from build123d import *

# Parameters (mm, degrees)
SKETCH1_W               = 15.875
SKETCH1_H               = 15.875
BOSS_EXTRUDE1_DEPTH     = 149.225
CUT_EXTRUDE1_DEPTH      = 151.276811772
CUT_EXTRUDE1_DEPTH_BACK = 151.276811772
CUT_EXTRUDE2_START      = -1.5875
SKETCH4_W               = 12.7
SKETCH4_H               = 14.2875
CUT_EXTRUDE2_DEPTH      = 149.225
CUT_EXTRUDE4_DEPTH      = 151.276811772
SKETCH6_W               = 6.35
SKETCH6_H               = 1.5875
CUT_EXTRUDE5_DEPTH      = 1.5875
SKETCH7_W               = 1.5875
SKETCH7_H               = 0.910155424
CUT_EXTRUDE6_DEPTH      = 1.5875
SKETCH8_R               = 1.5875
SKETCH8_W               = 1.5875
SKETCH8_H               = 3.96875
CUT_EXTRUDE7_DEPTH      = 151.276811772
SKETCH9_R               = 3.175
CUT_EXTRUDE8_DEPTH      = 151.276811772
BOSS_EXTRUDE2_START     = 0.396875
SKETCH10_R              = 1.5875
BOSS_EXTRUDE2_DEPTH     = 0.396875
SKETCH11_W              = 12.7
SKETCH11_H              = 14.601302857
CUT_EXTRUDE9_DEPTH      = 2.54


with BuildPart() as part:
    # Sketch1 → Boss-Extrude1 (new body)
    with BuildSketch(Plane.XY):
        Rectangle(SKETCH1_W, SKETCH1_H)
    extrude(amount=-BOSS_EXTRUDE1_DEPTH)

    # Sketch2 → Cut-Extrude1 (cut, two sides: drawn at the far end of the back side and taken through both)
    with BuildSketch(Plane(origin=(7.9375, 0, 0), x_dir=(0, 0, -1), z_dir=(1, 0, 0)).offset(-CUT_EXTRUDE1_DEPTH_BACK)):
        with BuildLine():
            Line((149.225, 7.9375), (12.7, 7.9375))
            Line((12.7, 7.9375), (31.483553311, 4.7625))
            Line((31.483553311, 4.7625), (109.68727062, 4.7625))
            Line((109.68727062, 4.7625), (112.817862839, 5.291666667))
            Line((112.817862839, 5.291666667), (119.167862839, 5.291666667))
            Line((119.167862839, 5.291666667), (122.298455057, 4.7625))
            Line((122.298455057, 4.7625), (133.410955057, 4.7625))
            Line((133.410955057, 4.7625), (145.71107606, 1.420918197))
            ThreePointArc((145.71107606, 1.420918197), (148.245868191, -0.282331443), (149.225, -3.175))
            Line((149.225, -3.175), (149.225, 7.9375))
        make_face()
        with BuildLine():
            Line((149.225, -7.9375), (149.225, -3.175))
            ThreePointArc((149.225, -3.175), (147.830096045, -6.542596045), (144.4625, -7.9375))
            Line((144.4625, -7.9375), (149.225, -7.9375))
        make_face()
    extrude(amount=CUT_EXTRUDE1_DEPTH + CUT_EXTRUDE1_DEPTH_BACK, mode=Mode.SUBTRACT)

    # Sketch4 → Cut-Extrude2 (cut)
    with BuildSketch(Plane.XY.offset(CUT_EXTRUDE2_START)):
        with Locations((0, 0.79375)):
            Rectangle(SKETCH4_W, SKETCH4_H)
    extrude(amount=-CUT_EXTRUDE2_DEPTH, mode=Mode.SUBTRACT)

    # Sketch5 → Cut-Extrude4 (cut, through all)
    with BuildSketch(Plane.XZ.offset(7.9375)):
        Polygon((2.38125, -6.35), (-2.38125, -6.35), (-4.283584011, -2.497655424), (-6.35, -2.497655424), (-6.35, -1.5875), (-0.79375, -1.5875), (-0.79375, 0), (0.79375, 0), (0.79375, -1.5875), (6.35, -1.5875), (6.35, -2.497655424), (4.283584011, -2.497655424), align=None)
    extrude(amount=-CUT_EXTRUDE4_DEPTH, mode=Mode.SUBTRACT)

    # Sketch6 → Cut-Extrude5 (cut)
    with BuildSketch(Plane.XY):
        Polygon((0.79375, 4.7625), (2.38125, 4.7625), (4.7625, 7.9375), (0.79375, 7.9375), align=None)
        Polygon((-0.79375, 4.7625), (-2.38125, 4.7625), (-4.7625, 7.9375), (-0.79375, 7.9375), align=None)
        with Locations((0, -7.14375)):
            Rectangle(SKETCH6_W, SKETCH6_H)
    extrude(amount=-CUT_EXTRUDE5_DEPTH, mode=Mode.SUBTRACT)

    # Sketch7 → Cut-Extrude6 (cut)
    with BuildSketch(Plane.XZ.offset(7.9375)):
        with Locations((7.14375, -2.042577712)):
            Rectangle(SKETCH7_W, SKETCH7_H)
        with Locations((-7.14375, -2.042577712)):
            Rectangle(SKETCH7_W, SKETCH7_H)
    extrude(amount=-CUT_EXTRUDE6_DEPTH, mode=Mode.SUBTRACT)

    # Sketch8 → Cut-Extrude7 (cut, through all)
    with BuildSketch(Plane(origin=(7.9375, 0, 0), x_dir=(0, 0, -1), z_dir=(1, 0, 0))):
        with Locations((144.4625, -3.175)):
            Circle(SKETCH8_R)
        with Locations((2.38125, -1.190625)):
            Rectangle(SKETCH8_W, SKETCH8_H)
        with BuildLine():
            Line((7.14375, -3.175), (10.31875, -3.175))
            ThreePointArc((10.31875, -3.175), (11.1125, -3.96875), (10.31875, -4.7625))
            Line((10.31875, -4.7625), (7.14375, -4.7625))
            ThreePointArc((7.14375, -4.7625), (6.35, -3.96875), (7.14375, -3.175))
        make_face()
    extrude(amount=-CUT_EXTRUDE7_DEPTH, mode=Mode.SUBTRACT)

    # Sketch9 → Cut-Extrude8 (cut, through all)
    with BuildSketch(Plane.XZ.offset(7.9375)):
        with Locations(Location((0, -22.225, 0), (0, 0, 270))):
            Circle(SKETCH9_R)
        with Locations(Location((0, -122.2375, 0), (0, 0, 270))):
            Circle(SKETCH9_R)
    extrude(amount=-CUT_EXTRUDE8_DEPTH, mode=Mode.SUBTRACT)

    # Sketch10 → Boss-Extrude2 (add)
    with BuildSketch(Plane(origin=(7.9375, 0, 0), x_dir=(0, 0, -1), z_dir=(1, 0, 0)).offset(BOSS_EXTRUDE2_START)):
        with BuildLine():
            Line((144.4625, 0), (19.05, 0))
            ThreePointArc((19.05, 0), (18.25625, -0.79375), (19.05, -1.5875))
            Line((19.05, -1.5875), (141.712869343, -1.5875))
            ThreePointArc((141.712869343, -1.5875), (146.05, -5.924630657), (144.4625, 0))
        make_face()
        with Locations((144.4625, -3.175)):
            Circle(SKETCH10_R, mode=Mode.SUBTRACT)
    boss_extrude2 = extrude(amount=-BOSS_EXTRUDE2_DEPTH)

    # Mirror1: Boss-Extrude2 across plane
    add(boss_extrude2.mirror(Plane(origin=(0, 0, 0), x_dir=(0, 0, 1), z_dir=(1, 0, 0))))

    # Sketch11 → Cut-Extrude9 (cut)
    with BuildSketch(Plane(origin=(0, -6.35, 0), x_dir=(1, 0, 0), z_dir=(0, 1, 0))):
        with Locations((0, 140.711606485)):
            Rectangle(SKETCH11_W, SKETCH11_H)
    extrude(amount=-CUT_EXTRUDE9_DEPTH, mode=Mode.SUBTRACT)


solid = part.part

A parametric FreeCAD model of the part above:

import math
import FreeCAD as App
import Part
import Sketcher
from FreeCAD import Vector
Q = App.Units.Quantity


def add_polygon(sketch, points):
    """Adds a closed chain of lines whose ends are joined by coincident constraints."""
    first, n = sketch.GeometryCount, len(points)
    for a, b in zip(points, points[1:] + points[:1]):
        sketch.addGeometry(Part.LineSegment(App.Vector(*a, 0), App.Vector(*b, 0)), False)
    for i in range(n):
        sketch.addConstraint(Sketcher.Constraint("Coincident", first + i, 2, first + (i + 1) % n, 1))

doc = App.newDocument("Part")
body = doc.addObject("PartDesign::Body", "Body")

sketch1 = doc.addObject("Sketcher::SketchObject", "Sketch")
body.addObject(sketch1)
sketch1.AttachmentSupport = (doc.XY_Plane, [""])
sketch1.MapMode = "FlatFace"
add_polygon(sketch1, [(-7.9375, 7.9375), (-7.9375, -7.9375), (7.9375, -7.9375), (7.9375, 7.9375)])
sketch1.addConstraint([
    Sketcher.Constraint("Vertical", 0),
    Sketcher.Constraint("Horizontal", 1),
    Sketcher.Constraint("Vertical", 2),
    Sketcher.Constraint("Horizontal", 3),
    Sketcher.Constraint("Symmetric", 0, 2, 2, 2, -1, 1),
    Sketcher.Constraint("Equal", 3, 0),
    Sketcher.Constraint("DistanceX", 1, 1, 1, 2, Q("0.625 in")),
])
pad1 = doc.addObject("PartDesign::Pad", "Pad")
body.addObject(pad1)
pad1.Profile = sketch1
pad1.Length = Q("5.875 in")
pad1.Reversed = True

sketch2 = doc.addObject("Sketcher::SketchObject", "Sketch001")
body.addObject(sketch2)
sketch2.AttachmentSupport = (doc.YZ_Plane, [""])
sketch2.MapMode = "FlatFace"
sketch2.AttachmentOffset = App.Placement(Vector(0, 0, 0.3125 * 25.4), App.Rotation())
sketch2.addGeometry([
    Part.LineSegment(Vector(7.9375, -149.225, 0), Vector(7.9375, -12.7, 0)),
    Part.LineSegment(Vector(7.9375, -12.7, 0), Vector(4.7625, -31.483553, 0)),
    Part.LineSegment(Vector(4.7625, -31.483553, 0), Vector(4.7625, -109.687271, 0)),
    Part.LineSegment(Vector(4.7625, -109.687271, 0), Vector(5.291667, -112.817863, 0)),
    Part.LineSegment(Vector(5.291667, -112.817863, 0), Vector(5.291667, -119.167863, 0)),
    Part.LineSegment(Vector(5.291667, -119.167863, 0), Vector(4.7625, -122.298455, 0)),
    Part.LineSegment(Vector(4.7625, -122.298455, 0), Vector(4.7625, -133.410955, 0)),
    Part.LineSegment(Vector(4.7625, -133.410955, 0), Vector(1.420918, -145.711076, 0)),
    Part.ArcOfCircle(Part.Circle(Vector(-3.175, -144.4625, 0), Vector(0, 0, 1), 4.7625), math.radians(-90), math.radians(-15.198755)),
    Part.LineSegment(Vector(-3.175, -149.225, 0), Vector(7.9375, -149.225, 0)),
    Part.LineSegment(Vector(-7.9375, -149.225, 0), Vector(-3.175, -149.225, 0)),
    Part.ArcOfCircle(Part.Circle(Vector(-3.175, -144.4625, 0), Vector(0, 0, 1), 4.7625), math.radians(-180), math.radians(-90)),
    Part.LineSegment(Vector(-7.9375, -144.4625, 0), Vector(-7.9375, -149.225, 0)),
], False)
sketch2.addConstraint([
    Sketcher.Constraint("Coincident", 0, 2, 1, 1),
    Sketcher.Constraint("Coincident", 1, 2, 2, 1),
    Sketcher.Constraint("Coincident", 2, 2, 3, 1),
    Sketcher.Constraint("Coincident", 3, 2, 4, 1),
    Sketcher.Constraint("Coincident", 4, 2, 5, 1),
    Sketcher.Constraint("Coincident", 5, 2, 6, 1),
    Sketcher.Constraint("Coincident", 6, 2, 7, 1),
    Sketcher.Constraint("Tangent", 7, 2, 8, 2),
    Sketcher.Constraint("Tangent", 8, 1, 9, 1),
    Sketcher.Constraint("Coincident", 9, 2, 0, 1),
    Sketcher.Constraint("Tangent", 10, 2, 11, 2),
    Sketcher.Constraint("Tangent", 11, 1, 12, 1),
    Sketcher.Constraint("Coincident", 12, 2, 10, 1),
    Sketcher.Constraint("Vertical", 0),
    Sketcher.Constraint("Vertical", 2),
    Sketcher.Constraint("Vertical", 4),
    Sketcher.Constraint("Vertical", 6),
    Sketcher.Constraint("Horizontal", 9),
    Sketcher.Constraint("Horizontal", 10),
    Sketcher.Constraint("Vertical", 12),
    Sketcher.Constraint("Coincident", 11, 3, 8, 3),
    Sketcher.Constraint("Equal", 8, 11),
    Sketcher.Constraint("Parallel", 1, 5),
    Sketcher.Constraint("Vertical", 2, 2, 5, 2),
    Sketcher.Constraint("Equal", 9, 6),
    Sketcher.Constraint("Equal", 3, 5),
    Sketcher.Constraint("Radius", 8, Q("0.1875 in")),
    Sketcher.Constraint("DistanceY", 4, 2, 4, 1, Q("0.25 in")),
    Sketcher.Constraint("DistanceY", 0, 2, -1, 1, Q("0.5 in")),
    Sketcher.Constraint("Distance", 1, Q("0.75 in")),
    Sketcher.Constraint("DistanceX", 9, 1, 9, 2, Q("0.4375 in")),
    Sketcher.Constraint("DistanceY", 0, 1, 0, 2, Q("5.375 in")),
    Sketcher.Constraint("Distance", 3, Q("0.125 in")),
    Sketcher.Constraint("DistanceX", 8, 3, -1, 1, Q("0.125 in")),
    Sketcher.Constraint("DistanceX", -1, 1, 1, 2, Q("0.1875 in")),
    Sketcher.Constraint("DistanceY", 5, 2, -1, 1, Q("4.8148998 in")),
])
pocket1 = doc.addObject("PartDesign::Pocket", "Pocket")
body.addObject(pocket1)
pocket1.Profile = sketch2
pocket1.Type = "ThroughAll"
pocket1.Midplane = True

sketch3 = doc.addObject("Sketcher::SketchObject", "Sketch002")
body.addObject(sketch3)
sketch3.AttachmentSupport = (doc.XY_Plane, [""])
sketch3.MapMode = "FlatFace"
sketch3.AttachmentOffset = App.Placement(Vector(0, 0, -0.0625 * 25.4), App.Rotation())
add_polygon(sketch3, [(-6.35, 7.9375), (-6.35, -6.35), (6.35, -6.35), (6.35, 7.9375)])
sketch3.addConstraint([
    Sketcher.Constraint("Vertical", 0),
    Sketcher.Constraint("Horizontal", 1),
    Sketcher.Constraint("Vertical", 2),
    Sketcher.Constraint("Horizontal", 3),
    Sketcher.Constraint("DistanceX", 1, 1, 1, 2, Q("0.5 in")),
    Sketcher.Constraint("DistanceY", 0, 2, 0, 1, Q("0.5625 in")),
    Sketcher.Constraint("DistanceX", 0, 2, -1, 1, Q("0.25 in")),
    Sketcher.Constraint("DistanceY", 0, 2, -1, 1, Q("0.25 in")),
])
pocket2 = doc.addObject("PartDesign::Pocket", "Pocket001")
body.addObject(pocket2)
pocket2.Profile = sketch3
pocket2.Length = Q("5.875 in")

sketch4 = doc.addObject("Sketcher::SketchObject", "Sketch003")
body.addObject(sketch4)
sketch4.AttachmentSupport = (doc.XZ_Plane, [""])
sketch4.MapMode = "FlatFace"
sketch4.AttachmentOffset = App.Placement(Vector(0, 0, 0.3125 * 25.4), App.Rotation())
add_polygon(sketch4, [(-2.38125, -6.35), (2.38125, -6.35), (4.283584, -2.497655), (6.35, -2.497655), (6.35, -1.5875), (0.79375, -1.5875), (0.79375, 0), (-0.79375, 0), (-0.79375, -1.5875), (-6.35, -1.5875), (-6.35, -2.497655), (-4.283584, -2.497655)])
sketch4.addConstraint([
    Sketcher.Constraint("Horizontal", 0),
    Sketcher.Constraint("Horizontal", 2),
    Sketcher.Constraint("Vertical", 3),
    Sketcher.Constraint("Horizontal", 4),
    Sketcher.Constraint("Vertical", 5),
    Sketcher.Constraint("Horizontal", 6),
    Sketcher.Constraint("Vertical", 7),
    Sketcher.Constraint("Horizontal", 8),
    Sketcher.Constraint("Vertical", 9),
    Sketcher.Constraint("Horizontal", 10),
    Sketcher.Constraint("Symmetric", 5, 2, 6, 2, -1, 1),
    Sketcher.Constraint("Symmetric", 3, 2, 8, 2, -2),
    Sketcher.Constraint("Symmetric", 1, 2, 10, 2, -2),
    Sketcher.Constraint("Equal", 6, 5),
    Sketcher.Constraint("Equal", 1, 11),
    Sketcher.Constraint("DistanceX", 0, 1, 0, 2, Q("0.1875 in")),
    Sketcher.Constraint("DistanceX", 4, 2, 4, 1, Q("0.21875 in")),
    Sketcher.Constraint("DistanceX", 6, 2, 6, 1, Q("0.0625 in")),
    Sketcher.Constraint("DistanceY", 0, 2, -1, 1, Q("0.25 in")),
    Sketcher.Constraint("DistanceX", 2, 1, 2, 2, 2.066416),
    Sketcher.Constraint("DistanceY", 3, 1, 3, 2, 0.910155),
])
pocket3 = doc.addObject("PartDesign::Pocket", "Pocket002")
body.addObject(pocket3)
pocket3.Profile = sketch4
pocket3.Type = "ThroughAll"

sketch5 = doc.addObject("Sketcher::SketchObject", "Sketch004")
body.addObject(sketch5)
sketch5.AttachmentSupport = (doc.XY_Plane, [""])
sketch5.MapMode = "FlatFace"
add_polygon(sketch5, [(0.79375, 4.7625), (2.38125, 4.7625), (4.7625, 7.9375), (0.79375, 7.9375)])
add_polygon(sketch5, [(-2.38125, 4.7625), (-0.79375, 4.7625), (-0.79375, 7.9375), (-4.7625, 7.9375)])
add_polygon(sketch5, [(-3.175, -6.35), (-3.175, -7.9375), (3.175, -7.9375), (3.175, -6.35)])
sketch5.addConstraint([
    Sketcher.Constraint("Horizontal", 0),
    Sketcher.Constraint("Horizontal", 2),
    Sketcher.Constraint("Vertical", 3),
    Sketcher.Constraint("Horizontal", 4),
    Sketcher.Constraint("Vertical", 5),
    Sketcher.Constraint("Horizontal", 6),
    Sketcher.Constraint("Vertical", 8),
    Sketcher.Constraint("Horizontal", 9),
    Sketcher.Constraint("Vertical", 10),
    Sketcher.Constraint("Horizontal", 11),
    Sketcher.Constraint("Symmetric", 3, 2, 4, 2, -2),
    Sketcher.Constraint("Symmetric", 1, 2, 6, 2, -2),
    Sketcher.Constraint("Equal", 0, 4),
    Sketcher.Constraint("Equal", 4, 8),
    Sketcher.Constraint("DistanceX", 9, 1, 9, 2, Q("0.25 in")),
    Sketcher.Constraint("DistanceY", 8, 2, 7, 2, Q("0.5 in")),
    Sketcher.Constraint("DistanceX", 0, 1, 0, 2, Q("0.0625 in")),
    Sketcher.Constraint("DistanceX", 2, 2, 2, 1, Q("0.15625 in")),
    Sketcher.Constraint("DistanceY", 3, 2, 3, 1, Q("0.125 in")),
    Sketcher.Constraint("DistanceY", 10, 2, -1, 1, Q("0.25 in")),
    Sketcher.Constraint("DistanceX", -1, 1, 0, 2, Q("0.09375 in")),
    Sketcher.Constraint("DistanceX", 8, 2, -1, 1, Q("0.125 in")),
])
pocket4 = doc.addObject("PartDesign::Pocket", "Pocket003")
body.addObject(pocket4)
pocket4.Profile = sketch5
pocket4.Length = Q("0.0625 in")

sketch6 = doc.addObject("Sketcher::SketchObject", "Sketch005")
body.addObject(sketch6)
sketch6.AttachmentSupport = (doc.XZ_Plane, [""])
sketch6.MapMode = "FlatFace"
sketch6.AttachmentOffset = App.Placement(Vector(0, 0, 0.3125 * 25.4), App.Rotation())
add_polygon(sketch6, [(6.35, -1.5875), (6.35, -2.497655), (7.9375, -2.497655), (7.9375, -1.5875)])
add_polygon(sketch6, [(-7.9375, -1.5875), (-7.9375, -2.497655), (-6.35, -2.497655), (-6.35, -1.5875)])
sketch6.addConstraint([
    Sketcher.Constraint("Vertical", 0),
    Sketcher.Constraint("Horizontal", 1),
    Sketcher.Constraint("Vertical", 2),
    Sketcher.Constraint("Horizontal", 3),
    Sketcher.Constraint("Vertical", 4),
    Sketcher.Constraint("Horizontal", 5),
    Sketcher.Constraint("Vertical", 6),
    Sketcher.Constraint("Horizontal", 7),
    Sketcher.Constraint("Symmetric", 1, 2, 4, 2, -2),
    Sketcher.Constraint("Symmetric", 3, 2, 6, 2, -2),
    Sketcher.Constraint("DistanceX", 5, 2, 0, 2, Q("0.5 in")),
    Sketcher.Constraint("DistanceX", 1, 1, 1, 2, Q("0.0625 in")),
    Sketcher.Constraint("DistanceY", 2, 2, -1, 1, Q("0.0625 in")),
    Sketcher.Constraint("DistanceY", 0, 2, 0, 1, 0.910155),
])
pocket5 = doc.addObject("PartDesign::Pocket", "Pocket004")
body.addObject(pocket5)
pocket5.Profile = sketch6
pocket5.Length = Q("0.0625 in")

sketch7 = doc.addObject("Sketcher::SketchObject", "Sketch006")
body.addObject(sketch7)
sketch7.AttachmentSupport = (doc.YZ_Plane, [""])
sketch7.MapMode = "FlatFace"
sketch7.AttachmentOffset = App.Placement(Vector(0, 0, 0.3125 * 25.4), App.Rotation())
sketch7.addGeometry(Part.Circle(Vector(-3.175, -144.4625, 0), Vector(0, 0, 1), 1.5875), False)
add_polygon(sketch7, [(0.79375, -1.5875), (-3.175, -1.5875), (-3.175, -3.175), (0.79375, -3.175)])
sketch7.addGeometry(Part.LineSegment(Vector(-3.175, -10.31875, 0), Vector(-3.175, -7.14375, 0)), False)
sketch7.addGeometry(Part.ArcOfCircle(Part.Circle(Vector(-3.96875, -7.14375, 0), Vector(0, 0, 1), 0.79375), math.radians(0), math.radians(180)), False)
sketch7.addGeometry(Part.LineSegment(Vector(-4.7625, -7.14375, 0), Vector(-4.7625, -10.31875, 0)), False)
sketch7.addGeometry(Part.ArcOfCircle(Part.Circle(Vector(-3.96875, -10.31875, 0), Vector(0, 0, 1), 0.79375), math.radians(180), math.radians(360)), False)
sketch7.addConstraint([
    Sketcher.Constraint("Tangent", 5, 2, 6, 1),
    Sketcher.Constraint("Tangent", 6, 2, 7, 1),
    Sketcher.Constraint("Tangent", 7, 2, 8, 1),
    Sketcher.Constraint("Tangent", 8, 2, 5, 1),
    Sketcher.Constraint("Horizontal", 1),
    Sketcher.Constraint("Vertical", 2),
    Sketcher.Constraint("Horizontal", 3),
    Sketcher.Constraint("Vertical", 4),
    Sketcher.Constraint("Vertical", 5),
    Sketcher.Constraint("Vertical", 7),
    Sketcher.Constraint("Vertical", 0, 3, 1, 2),
    Sketcher.Constraint("Vertical", 2, 2, 5, 2),
    Sketcher.Constraint("Diameter", 0, Q("0.125 in")),
    Sketcher.Constraint("Radius", 6, Q("0.03125 in")),
    Sketcher.Constraint("DistanceX", 1, 2, 1, 1, Q("0.15625 in")),
    Sketcher.Constraint("DistanceY", 2, 2, 2, 1, Q("0.0625 in")),
    Sketcher.Constraint("DistanceY", 5, 1, 5, 2, Q("0.125 in")),
    Sketcher.Constraint("DistanceX", 0, 3, -1, 1, Q("0.125 in")),
    Sketcher.Constraint("DistanceY", 0, 3, -1, 1, Q("5.6875 in")),
    Sketcher.Constraint("DistanceY", 6, 3, -1, 1, Q("0.28125 in")),
    Sketcher.Constraint("DistanceY", 1, 2, -1, 1, Q("0.0625 in")),
])
pocket6 = doc.addObject("PartDesign::Pocket", "Pocket005")
body.addObject(pocket6)
pocket6.Profile = sketch7
pocket6.Type = "ThroughAll"

sketch8 = doc.addObject("Sketcher::SketchObject", "Sketch007")
body.addObject(sketch8)
sketch8.AttachmentSupport = (doc.XZ_Plane, [""])
sketch8.MapMode = "FlatFace"
sketch8.AttachmentOffset = App.Placement(Vector(0, 0, 0.3125 * 25.4), App.Rotation())
sketch8.addGeometry([
    Part.Circle(Vector(0, -22.225, 0), Vector(0, 0, 1), 3.175),
    Part.Circle(Vector(0, -122.2375, 0), Vector(0, 0, 1), 3.175),
], False)
sketch8.addConstraint([
    Sketcher.Constraint("Equal", 0, 1),
    Sketcher.Constraint("PointOnObject", 0, 3, -2),
    Sketcher.Constraint("PointOnObject", 1, 3, -2),
    Sketcher.Constraint("Diameter", 0, Q("0.25 in")),
    Sketcher.Constraint("DistanceY", 0, 3, -1, 1, Q("0.875 in")),
    Sketcher.Constraint("DistanceY", 1, 3, -1, 1, Q("4.8125 in")),
])
pocket7 = doc.addObject("PartDesign::Pocket", "Pocket006")
body.addObject(pocket7)
pocket7.Profile = sketch8
pocket7.Type = "ThroughAll"

sketch9 = doc.addObject("Sketcher::SketchObject", "Sketch008")
body.addObject(sketch9)
sketch9.AttachmentSupport = (doc.YZ_Plane, [""])
sketch9.MapMode = "FlatFace"
sketch9.AttachmentOffset = App.Placement(Vector(0, 0, 0.328125 * 25.4), App.Rotation())
sketch9.addGeometry([
    Part.LineSegment(Vector(0, -144.4625, 0), Vector(0, -19.05, 0)),
    Part.ArcOfCircle(Part.Circle(Vector(-0.79375, -19.05, 0), Vector(0, 0, 1), 0.79375), math.radians(0), math.radians(180)),
    Part.LineSegment(Vector(-1.5875, -19.05, 0), Vector(-1.5875, -141.712869, 0)),
    Part.ArcOfCircle(Part.Circle(Vector(-3.175, -144.4625, 0), Vector(0, 0, 1), 3.175), math.radians(60), math.radians(360)),
    Part.Circle(Vector(-3.175, -144.4625, 0), Vector(0, 0, 1), 1.5875),
], False)
sketch9.addConstraint([
    Sketcher.Constraint("Tangent", 0, 2, 1, 1),
    Sketcher.Constraint("Tangent", 1, 2, 2, 1),
    Sketcher.Constraint("Coincident", 2, 2, 3, 1),
    Sketcher.Constraint("Tangent", 3, 2, 0, 1),
    Sketcher.Constraint("Vertical", 0),
    Sketcher.Constraint("Vertical", 2),
    Sketcher.Constraint("Coincident", 4, 3, 3, 3),
    Sketcher.Constraint("PointOnObject", 0, 2, -2),
    Sketcher.Constraint("Diameter", 4, Q("0.125 in")),
    Sketcher.Constraint("Radius", 1, Q("0.03125 in")),
    Sketcher.Constraint("Radius", 3, Q("0.125 in")),
    Sketcher.Constraint("DistanceY", 0, 1, 0, 2, Q("4.9375 in")),
    Sketcher.Constraint("DistanceY", 1, 3, -1, 1, Q("0.75 in")),
])
pad2 = doc.addObject("PartDesign::Pad", "Pad001")
body.addObject(pad2)
pad2.Profile = sketch9
pad2.Length = Q("0.015625 in")
pad2.Reversed = True
doc.recompute()

mirrored = doc.addObject("PartDesign::Mirrored", "Mirrored")
body.addObject(mirrored)
mirrored.Originals = [pad2]
mirrored.MirrorPlane = (doc.YZ_Plane, [""])
body.Tip = mirrored

sketch10 = doc.addObject("Sketcher::SketchObject", "Sketch009")
body.addObject(sketch10)
sketch10.AttachmentSupport = (doc.XZ_Plane, [""])
sketch10.MapMode = "FlatFace"
sketch10.AttachmentOffset = App.Placement(Vector(0, 0, 0.25 * 25.4), App.Rotation())
add_polygon(sketch10, [(-6.35, -148.012258), (-6.35, -133.410955), (6.35, -133.410955), (6.35, -148.012258)])
sketch10.addConstraint([
    Sketcher.Constraint("Vertical", 0),
    Sketcher.Constraint("Horizontal", 1),
    Sketcher.Constraint("Vertical", 2),
    Sketcher.Constraint("Horizontal", 3),
    Sketcher.Constraint("DistanceX", 1, 1, 1, 2, Q("0.5 in")),
    Sketcher.Constraint("DistanceX", 0, 2, -1, 1, Q("0.25 in")),
    Sketcher.Constraint("DistanceY", 0, 2, -1, 1, Q("5.2523998 in")),
    Sketcher.Constraint("DistanceY", 0, 1, 0, 2, 14.601303),
])
pocket8 = doc.addObject("PartDesign::Pocket", "Pocket007")
body.addObject(pocket8)
pocket8.Profile = sketch10
pocket8.Length = Q("0.1 in")
pocket8.Reversed = True

doc.recompute()
